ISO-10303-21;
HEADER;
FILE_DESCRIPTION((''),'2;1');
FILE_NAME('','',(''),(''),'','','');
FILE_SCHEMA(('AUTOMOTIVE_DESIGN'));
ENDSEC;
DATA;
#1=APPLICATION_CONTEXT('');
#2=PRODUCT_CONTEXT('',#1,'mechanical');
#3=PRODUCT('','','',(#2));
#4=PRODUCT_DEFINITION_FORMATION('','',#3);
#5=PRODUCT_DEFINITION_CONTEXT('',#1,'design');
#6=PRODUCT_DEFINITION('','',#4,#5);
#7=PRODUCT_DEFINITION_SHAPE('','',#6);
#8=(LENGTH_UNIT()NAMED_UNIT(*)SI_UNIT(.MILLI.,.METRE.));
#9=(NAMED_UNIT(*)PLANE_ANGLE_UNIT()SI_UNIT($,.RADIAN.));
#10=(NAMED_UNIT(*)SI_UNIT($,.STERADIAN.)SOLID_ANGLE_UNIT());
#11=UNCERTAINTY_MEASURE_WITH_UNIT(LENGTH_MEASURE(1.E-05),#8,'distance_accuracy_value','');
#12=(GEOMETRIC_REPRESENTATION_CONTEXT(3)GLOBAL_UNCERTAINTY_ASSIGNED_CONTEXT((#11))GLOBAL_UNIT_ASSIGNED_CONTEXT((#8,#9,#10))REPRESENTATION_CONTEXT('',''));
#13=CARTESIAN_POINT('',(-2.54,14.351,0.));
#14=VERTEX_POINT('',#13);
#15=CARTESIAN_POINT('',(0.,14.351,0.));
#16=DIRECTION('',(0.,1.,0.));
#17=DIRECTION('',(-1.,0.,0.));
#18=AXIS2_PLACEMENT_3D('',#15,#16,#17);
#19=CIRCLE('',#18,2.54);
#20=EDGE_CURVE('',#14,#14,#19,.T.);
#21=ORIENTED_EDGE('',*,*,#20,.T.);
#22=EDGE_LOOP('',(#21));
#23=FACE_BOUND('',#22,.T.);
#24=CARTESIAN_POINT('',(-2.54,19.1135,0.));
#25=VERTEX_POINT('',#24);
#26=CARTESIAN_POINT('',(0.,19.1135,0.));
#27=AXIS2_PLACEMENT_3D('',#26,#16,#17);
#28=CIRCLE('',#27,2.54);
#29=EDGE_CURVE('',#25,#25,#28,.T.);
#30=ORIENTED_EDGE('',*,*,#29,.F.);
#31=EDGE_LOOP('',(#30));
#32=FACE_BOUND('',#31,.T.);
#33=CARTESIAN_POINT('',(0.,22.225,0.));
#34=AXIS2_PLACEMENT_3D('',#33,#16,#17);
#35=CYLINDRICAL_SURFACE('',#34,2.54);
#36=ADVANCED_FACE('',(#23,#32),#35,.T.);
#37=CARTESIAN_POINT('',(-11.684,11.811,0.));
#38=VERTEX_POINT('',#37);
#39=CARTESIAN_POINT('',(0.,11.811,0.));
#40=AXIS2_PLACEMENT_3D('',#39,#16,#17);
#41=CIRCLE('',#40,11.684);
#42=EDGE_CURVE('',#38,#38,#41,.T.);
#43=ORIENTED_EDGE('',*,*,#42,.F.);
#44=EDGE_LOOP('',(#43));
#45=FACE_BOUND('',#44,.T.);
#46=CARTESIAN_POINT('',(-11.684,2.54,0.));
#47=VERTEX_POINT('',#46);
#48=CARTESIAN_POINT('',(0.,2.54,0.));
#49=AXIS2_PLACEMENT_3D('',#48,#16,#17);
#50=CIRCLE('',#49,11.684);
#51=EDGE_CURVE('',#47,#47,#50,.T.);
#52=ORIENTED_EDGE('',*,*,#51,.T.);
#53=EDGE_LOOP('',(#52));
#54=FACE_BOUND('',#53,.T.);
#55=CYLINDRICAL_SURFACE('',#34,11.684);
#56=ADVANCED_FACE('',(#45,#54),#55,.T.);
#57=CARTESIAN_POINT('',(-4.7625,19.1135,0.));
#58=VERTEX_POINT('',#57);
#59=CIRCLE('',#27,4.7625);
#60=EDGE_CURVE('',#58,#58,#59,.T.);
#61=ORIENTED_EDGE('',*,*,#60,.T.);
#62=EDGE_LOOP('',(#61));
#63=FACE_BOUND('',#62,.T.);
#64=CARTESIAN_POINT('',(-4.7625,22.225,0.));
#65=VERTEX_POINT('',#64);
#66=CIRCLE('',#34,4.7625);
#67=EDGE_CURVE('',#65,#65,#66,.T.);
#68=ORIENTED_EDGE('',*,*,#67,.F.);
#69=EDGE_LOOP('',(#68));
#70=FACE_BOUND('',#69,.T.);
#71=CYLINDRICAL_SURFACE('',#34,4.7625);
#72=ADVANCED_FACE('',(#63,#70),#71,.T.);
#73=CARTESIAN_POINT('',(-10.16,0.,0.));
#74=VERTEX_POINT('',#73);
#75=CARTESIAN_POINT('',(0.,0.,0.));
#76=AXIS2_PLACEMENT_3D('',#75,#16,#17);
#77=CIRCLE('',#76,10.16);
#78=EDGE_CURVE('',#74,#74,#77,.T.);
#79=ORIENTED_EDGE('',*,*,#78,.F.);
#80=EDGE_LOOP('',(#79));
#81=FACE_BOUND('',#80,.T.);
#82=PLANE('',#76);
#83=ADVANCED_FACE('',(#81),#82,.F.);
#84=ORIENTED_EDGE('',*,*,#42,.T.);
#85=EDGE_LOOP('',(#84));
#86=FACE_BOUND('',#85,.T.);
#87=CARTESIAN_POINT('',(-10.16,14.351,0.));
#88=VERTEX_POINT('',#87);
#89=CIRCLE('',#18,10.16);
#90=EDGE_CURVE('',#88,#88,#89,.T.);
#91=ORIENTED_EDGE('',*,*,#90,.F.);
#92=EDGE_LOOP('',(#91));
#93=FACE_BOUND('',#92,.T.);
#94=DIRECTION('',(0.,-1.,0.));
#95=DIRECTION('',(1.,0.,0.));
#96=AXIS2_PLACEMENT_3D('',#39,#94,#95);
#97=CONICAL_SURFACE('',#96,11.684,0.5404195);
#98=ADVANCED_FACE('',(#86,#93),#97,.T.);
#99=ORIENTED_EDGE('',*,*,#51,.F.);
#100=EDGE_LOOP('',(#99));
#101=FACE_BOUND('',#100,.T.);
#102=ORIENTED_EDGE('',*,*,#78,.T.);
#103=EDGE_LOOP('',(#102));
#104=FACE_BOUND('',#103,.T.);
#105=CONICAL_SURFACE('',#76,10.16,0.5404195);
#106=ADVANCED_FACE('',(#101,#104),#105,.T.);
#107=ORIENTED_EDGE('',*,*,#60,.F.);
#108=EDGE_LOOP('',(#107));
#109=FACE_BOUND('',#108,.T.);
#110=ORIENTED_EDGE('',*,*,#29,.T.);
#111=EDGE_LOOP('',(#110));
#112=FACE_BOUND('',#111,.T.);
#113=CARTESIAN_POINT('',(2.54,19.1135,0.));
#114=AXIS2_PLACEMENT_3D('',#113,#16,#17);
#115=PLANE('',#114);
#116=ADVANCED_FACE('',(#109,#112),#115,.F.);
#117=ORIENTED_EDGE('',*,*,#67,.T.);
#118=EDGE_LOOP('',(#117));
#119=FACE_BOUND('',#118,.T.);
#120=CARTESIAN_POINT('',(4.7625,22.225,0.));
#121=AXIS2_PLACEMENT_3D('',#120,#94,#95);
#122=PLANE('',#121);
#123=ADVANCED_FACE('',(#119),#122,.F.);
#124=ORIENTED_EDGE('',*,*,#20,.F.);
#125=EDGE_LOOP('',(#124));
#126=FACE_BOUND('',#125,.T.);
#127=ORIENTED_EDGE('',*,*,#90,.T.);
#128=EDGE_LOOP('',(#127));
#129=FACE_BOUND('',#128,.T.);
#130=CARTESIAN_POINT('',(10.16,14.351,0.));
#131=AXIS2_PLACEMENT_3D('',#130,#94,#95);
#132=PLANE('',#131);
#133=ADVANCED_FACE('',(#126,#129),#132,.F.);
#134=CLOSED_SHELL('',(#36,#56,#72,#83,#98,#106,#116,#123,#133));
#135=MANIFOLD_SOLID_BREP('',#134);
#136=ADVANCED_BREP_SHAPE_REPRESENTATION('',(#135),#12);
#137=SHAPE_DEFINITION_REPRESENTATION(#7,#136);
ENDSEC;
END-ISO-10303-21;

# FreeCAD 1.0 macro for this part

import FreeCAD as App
import Part
import Sketcher

V = App.Vector
Q = App.Units.Quantity


def add_polygon(sketch, points):
    """Adds a closed chain of lines whose ends are joined by coincident constraints."""
    first, n = sketch.GeometryCount, len(points)
    for a, b in zip(points, points[1:] + points[:1]):
        sketch.addGeometry(Part.LineSegment(App.Vector(*a, 0), App.Vector(*b, 0)), False)
    for i in range(n):
        sketch.addConstraint(Sketcher.Constraint("Coincident", first + i, 2, first + (i + 1) % n, 1))

doc = App.newDocument("Part")
body = doc.addObject("PartDesign::Body", "Body")

# Sketch on XY plane
sketch1 = body.newObject("Sketcher::SketchObject", "Sketch")
sketch1.AttachmentSupport = (doc.getObject("XY_Plane"), [""])
sketch1.MapMode = "FlatFace"
add_polygon(sketch1, [(0, 0), (10.2, 0), (11.7, 2.5), (11.7, 11.8), (10.2, 14.4), (2.5, 14.4), (2.5, 19.1), (4.8, 19.1), (4.8, 22.2), (0, 22.2)])  # lines 0-9
sketch1.addConstraint([
    Sketcher.Constraint("Horizontal", 0),
    Sketcher.Constraint("Vertical", 2),
    Sketcher.Constraint("Horizontal", 4),
    Sketcher.Constraint("Vertical", 5),
    Sketcher.Constraint("Horizontal", 6),
    Sketcher.Constraint("Vertical", 7),
    Sketcher.Constraint("Horizontal", 8),
    Sketcher.Constraint("Vertical", 9),
    Sketcher.Constraint("Coincident", 9, 2, -1, 1),
    Sketcher.Constraint("Vertical", 0, 2, 3, 2),
    Sketcher.Constraint("Equal", 8, 5),
    Sketcher.Constraint("Equal", 1, 3),
    Sketcher.Constraint("DistanceX", 0, 1, 0, 2, Q("0.4 in")),
    Sketcher.Constraint("DistanceX", 4, 2, 4, 1, Q("0.3 in")),
    Sketcher.Constraint("DistanceY", -1, 1, 1, 2, Q("0.1 in")),
    Sketcher.Constraint("DistanceX", 8, 2, 8, 1, Q("0.1875 in")),
    Sketcher.Constraint("DistanceY", 2, 1, 2, 2, Q("0.365 in")),
    Sketcher.Constraint("DistanceY", 9, 2, 9, 1, Q("0.875 in")),
    Sketcher.Constraint("DistanceX", -1, 1, 1, 2, Q("0.46 in")),
])
revolution = body.newObject("PartDesign::Revolution", "Revolution")
revolution.Profile = sketch1
revolution.ReferenceAxis = (sketch1, ["V_Axis"])
revolution.Angle = 360

doc.recompute()
